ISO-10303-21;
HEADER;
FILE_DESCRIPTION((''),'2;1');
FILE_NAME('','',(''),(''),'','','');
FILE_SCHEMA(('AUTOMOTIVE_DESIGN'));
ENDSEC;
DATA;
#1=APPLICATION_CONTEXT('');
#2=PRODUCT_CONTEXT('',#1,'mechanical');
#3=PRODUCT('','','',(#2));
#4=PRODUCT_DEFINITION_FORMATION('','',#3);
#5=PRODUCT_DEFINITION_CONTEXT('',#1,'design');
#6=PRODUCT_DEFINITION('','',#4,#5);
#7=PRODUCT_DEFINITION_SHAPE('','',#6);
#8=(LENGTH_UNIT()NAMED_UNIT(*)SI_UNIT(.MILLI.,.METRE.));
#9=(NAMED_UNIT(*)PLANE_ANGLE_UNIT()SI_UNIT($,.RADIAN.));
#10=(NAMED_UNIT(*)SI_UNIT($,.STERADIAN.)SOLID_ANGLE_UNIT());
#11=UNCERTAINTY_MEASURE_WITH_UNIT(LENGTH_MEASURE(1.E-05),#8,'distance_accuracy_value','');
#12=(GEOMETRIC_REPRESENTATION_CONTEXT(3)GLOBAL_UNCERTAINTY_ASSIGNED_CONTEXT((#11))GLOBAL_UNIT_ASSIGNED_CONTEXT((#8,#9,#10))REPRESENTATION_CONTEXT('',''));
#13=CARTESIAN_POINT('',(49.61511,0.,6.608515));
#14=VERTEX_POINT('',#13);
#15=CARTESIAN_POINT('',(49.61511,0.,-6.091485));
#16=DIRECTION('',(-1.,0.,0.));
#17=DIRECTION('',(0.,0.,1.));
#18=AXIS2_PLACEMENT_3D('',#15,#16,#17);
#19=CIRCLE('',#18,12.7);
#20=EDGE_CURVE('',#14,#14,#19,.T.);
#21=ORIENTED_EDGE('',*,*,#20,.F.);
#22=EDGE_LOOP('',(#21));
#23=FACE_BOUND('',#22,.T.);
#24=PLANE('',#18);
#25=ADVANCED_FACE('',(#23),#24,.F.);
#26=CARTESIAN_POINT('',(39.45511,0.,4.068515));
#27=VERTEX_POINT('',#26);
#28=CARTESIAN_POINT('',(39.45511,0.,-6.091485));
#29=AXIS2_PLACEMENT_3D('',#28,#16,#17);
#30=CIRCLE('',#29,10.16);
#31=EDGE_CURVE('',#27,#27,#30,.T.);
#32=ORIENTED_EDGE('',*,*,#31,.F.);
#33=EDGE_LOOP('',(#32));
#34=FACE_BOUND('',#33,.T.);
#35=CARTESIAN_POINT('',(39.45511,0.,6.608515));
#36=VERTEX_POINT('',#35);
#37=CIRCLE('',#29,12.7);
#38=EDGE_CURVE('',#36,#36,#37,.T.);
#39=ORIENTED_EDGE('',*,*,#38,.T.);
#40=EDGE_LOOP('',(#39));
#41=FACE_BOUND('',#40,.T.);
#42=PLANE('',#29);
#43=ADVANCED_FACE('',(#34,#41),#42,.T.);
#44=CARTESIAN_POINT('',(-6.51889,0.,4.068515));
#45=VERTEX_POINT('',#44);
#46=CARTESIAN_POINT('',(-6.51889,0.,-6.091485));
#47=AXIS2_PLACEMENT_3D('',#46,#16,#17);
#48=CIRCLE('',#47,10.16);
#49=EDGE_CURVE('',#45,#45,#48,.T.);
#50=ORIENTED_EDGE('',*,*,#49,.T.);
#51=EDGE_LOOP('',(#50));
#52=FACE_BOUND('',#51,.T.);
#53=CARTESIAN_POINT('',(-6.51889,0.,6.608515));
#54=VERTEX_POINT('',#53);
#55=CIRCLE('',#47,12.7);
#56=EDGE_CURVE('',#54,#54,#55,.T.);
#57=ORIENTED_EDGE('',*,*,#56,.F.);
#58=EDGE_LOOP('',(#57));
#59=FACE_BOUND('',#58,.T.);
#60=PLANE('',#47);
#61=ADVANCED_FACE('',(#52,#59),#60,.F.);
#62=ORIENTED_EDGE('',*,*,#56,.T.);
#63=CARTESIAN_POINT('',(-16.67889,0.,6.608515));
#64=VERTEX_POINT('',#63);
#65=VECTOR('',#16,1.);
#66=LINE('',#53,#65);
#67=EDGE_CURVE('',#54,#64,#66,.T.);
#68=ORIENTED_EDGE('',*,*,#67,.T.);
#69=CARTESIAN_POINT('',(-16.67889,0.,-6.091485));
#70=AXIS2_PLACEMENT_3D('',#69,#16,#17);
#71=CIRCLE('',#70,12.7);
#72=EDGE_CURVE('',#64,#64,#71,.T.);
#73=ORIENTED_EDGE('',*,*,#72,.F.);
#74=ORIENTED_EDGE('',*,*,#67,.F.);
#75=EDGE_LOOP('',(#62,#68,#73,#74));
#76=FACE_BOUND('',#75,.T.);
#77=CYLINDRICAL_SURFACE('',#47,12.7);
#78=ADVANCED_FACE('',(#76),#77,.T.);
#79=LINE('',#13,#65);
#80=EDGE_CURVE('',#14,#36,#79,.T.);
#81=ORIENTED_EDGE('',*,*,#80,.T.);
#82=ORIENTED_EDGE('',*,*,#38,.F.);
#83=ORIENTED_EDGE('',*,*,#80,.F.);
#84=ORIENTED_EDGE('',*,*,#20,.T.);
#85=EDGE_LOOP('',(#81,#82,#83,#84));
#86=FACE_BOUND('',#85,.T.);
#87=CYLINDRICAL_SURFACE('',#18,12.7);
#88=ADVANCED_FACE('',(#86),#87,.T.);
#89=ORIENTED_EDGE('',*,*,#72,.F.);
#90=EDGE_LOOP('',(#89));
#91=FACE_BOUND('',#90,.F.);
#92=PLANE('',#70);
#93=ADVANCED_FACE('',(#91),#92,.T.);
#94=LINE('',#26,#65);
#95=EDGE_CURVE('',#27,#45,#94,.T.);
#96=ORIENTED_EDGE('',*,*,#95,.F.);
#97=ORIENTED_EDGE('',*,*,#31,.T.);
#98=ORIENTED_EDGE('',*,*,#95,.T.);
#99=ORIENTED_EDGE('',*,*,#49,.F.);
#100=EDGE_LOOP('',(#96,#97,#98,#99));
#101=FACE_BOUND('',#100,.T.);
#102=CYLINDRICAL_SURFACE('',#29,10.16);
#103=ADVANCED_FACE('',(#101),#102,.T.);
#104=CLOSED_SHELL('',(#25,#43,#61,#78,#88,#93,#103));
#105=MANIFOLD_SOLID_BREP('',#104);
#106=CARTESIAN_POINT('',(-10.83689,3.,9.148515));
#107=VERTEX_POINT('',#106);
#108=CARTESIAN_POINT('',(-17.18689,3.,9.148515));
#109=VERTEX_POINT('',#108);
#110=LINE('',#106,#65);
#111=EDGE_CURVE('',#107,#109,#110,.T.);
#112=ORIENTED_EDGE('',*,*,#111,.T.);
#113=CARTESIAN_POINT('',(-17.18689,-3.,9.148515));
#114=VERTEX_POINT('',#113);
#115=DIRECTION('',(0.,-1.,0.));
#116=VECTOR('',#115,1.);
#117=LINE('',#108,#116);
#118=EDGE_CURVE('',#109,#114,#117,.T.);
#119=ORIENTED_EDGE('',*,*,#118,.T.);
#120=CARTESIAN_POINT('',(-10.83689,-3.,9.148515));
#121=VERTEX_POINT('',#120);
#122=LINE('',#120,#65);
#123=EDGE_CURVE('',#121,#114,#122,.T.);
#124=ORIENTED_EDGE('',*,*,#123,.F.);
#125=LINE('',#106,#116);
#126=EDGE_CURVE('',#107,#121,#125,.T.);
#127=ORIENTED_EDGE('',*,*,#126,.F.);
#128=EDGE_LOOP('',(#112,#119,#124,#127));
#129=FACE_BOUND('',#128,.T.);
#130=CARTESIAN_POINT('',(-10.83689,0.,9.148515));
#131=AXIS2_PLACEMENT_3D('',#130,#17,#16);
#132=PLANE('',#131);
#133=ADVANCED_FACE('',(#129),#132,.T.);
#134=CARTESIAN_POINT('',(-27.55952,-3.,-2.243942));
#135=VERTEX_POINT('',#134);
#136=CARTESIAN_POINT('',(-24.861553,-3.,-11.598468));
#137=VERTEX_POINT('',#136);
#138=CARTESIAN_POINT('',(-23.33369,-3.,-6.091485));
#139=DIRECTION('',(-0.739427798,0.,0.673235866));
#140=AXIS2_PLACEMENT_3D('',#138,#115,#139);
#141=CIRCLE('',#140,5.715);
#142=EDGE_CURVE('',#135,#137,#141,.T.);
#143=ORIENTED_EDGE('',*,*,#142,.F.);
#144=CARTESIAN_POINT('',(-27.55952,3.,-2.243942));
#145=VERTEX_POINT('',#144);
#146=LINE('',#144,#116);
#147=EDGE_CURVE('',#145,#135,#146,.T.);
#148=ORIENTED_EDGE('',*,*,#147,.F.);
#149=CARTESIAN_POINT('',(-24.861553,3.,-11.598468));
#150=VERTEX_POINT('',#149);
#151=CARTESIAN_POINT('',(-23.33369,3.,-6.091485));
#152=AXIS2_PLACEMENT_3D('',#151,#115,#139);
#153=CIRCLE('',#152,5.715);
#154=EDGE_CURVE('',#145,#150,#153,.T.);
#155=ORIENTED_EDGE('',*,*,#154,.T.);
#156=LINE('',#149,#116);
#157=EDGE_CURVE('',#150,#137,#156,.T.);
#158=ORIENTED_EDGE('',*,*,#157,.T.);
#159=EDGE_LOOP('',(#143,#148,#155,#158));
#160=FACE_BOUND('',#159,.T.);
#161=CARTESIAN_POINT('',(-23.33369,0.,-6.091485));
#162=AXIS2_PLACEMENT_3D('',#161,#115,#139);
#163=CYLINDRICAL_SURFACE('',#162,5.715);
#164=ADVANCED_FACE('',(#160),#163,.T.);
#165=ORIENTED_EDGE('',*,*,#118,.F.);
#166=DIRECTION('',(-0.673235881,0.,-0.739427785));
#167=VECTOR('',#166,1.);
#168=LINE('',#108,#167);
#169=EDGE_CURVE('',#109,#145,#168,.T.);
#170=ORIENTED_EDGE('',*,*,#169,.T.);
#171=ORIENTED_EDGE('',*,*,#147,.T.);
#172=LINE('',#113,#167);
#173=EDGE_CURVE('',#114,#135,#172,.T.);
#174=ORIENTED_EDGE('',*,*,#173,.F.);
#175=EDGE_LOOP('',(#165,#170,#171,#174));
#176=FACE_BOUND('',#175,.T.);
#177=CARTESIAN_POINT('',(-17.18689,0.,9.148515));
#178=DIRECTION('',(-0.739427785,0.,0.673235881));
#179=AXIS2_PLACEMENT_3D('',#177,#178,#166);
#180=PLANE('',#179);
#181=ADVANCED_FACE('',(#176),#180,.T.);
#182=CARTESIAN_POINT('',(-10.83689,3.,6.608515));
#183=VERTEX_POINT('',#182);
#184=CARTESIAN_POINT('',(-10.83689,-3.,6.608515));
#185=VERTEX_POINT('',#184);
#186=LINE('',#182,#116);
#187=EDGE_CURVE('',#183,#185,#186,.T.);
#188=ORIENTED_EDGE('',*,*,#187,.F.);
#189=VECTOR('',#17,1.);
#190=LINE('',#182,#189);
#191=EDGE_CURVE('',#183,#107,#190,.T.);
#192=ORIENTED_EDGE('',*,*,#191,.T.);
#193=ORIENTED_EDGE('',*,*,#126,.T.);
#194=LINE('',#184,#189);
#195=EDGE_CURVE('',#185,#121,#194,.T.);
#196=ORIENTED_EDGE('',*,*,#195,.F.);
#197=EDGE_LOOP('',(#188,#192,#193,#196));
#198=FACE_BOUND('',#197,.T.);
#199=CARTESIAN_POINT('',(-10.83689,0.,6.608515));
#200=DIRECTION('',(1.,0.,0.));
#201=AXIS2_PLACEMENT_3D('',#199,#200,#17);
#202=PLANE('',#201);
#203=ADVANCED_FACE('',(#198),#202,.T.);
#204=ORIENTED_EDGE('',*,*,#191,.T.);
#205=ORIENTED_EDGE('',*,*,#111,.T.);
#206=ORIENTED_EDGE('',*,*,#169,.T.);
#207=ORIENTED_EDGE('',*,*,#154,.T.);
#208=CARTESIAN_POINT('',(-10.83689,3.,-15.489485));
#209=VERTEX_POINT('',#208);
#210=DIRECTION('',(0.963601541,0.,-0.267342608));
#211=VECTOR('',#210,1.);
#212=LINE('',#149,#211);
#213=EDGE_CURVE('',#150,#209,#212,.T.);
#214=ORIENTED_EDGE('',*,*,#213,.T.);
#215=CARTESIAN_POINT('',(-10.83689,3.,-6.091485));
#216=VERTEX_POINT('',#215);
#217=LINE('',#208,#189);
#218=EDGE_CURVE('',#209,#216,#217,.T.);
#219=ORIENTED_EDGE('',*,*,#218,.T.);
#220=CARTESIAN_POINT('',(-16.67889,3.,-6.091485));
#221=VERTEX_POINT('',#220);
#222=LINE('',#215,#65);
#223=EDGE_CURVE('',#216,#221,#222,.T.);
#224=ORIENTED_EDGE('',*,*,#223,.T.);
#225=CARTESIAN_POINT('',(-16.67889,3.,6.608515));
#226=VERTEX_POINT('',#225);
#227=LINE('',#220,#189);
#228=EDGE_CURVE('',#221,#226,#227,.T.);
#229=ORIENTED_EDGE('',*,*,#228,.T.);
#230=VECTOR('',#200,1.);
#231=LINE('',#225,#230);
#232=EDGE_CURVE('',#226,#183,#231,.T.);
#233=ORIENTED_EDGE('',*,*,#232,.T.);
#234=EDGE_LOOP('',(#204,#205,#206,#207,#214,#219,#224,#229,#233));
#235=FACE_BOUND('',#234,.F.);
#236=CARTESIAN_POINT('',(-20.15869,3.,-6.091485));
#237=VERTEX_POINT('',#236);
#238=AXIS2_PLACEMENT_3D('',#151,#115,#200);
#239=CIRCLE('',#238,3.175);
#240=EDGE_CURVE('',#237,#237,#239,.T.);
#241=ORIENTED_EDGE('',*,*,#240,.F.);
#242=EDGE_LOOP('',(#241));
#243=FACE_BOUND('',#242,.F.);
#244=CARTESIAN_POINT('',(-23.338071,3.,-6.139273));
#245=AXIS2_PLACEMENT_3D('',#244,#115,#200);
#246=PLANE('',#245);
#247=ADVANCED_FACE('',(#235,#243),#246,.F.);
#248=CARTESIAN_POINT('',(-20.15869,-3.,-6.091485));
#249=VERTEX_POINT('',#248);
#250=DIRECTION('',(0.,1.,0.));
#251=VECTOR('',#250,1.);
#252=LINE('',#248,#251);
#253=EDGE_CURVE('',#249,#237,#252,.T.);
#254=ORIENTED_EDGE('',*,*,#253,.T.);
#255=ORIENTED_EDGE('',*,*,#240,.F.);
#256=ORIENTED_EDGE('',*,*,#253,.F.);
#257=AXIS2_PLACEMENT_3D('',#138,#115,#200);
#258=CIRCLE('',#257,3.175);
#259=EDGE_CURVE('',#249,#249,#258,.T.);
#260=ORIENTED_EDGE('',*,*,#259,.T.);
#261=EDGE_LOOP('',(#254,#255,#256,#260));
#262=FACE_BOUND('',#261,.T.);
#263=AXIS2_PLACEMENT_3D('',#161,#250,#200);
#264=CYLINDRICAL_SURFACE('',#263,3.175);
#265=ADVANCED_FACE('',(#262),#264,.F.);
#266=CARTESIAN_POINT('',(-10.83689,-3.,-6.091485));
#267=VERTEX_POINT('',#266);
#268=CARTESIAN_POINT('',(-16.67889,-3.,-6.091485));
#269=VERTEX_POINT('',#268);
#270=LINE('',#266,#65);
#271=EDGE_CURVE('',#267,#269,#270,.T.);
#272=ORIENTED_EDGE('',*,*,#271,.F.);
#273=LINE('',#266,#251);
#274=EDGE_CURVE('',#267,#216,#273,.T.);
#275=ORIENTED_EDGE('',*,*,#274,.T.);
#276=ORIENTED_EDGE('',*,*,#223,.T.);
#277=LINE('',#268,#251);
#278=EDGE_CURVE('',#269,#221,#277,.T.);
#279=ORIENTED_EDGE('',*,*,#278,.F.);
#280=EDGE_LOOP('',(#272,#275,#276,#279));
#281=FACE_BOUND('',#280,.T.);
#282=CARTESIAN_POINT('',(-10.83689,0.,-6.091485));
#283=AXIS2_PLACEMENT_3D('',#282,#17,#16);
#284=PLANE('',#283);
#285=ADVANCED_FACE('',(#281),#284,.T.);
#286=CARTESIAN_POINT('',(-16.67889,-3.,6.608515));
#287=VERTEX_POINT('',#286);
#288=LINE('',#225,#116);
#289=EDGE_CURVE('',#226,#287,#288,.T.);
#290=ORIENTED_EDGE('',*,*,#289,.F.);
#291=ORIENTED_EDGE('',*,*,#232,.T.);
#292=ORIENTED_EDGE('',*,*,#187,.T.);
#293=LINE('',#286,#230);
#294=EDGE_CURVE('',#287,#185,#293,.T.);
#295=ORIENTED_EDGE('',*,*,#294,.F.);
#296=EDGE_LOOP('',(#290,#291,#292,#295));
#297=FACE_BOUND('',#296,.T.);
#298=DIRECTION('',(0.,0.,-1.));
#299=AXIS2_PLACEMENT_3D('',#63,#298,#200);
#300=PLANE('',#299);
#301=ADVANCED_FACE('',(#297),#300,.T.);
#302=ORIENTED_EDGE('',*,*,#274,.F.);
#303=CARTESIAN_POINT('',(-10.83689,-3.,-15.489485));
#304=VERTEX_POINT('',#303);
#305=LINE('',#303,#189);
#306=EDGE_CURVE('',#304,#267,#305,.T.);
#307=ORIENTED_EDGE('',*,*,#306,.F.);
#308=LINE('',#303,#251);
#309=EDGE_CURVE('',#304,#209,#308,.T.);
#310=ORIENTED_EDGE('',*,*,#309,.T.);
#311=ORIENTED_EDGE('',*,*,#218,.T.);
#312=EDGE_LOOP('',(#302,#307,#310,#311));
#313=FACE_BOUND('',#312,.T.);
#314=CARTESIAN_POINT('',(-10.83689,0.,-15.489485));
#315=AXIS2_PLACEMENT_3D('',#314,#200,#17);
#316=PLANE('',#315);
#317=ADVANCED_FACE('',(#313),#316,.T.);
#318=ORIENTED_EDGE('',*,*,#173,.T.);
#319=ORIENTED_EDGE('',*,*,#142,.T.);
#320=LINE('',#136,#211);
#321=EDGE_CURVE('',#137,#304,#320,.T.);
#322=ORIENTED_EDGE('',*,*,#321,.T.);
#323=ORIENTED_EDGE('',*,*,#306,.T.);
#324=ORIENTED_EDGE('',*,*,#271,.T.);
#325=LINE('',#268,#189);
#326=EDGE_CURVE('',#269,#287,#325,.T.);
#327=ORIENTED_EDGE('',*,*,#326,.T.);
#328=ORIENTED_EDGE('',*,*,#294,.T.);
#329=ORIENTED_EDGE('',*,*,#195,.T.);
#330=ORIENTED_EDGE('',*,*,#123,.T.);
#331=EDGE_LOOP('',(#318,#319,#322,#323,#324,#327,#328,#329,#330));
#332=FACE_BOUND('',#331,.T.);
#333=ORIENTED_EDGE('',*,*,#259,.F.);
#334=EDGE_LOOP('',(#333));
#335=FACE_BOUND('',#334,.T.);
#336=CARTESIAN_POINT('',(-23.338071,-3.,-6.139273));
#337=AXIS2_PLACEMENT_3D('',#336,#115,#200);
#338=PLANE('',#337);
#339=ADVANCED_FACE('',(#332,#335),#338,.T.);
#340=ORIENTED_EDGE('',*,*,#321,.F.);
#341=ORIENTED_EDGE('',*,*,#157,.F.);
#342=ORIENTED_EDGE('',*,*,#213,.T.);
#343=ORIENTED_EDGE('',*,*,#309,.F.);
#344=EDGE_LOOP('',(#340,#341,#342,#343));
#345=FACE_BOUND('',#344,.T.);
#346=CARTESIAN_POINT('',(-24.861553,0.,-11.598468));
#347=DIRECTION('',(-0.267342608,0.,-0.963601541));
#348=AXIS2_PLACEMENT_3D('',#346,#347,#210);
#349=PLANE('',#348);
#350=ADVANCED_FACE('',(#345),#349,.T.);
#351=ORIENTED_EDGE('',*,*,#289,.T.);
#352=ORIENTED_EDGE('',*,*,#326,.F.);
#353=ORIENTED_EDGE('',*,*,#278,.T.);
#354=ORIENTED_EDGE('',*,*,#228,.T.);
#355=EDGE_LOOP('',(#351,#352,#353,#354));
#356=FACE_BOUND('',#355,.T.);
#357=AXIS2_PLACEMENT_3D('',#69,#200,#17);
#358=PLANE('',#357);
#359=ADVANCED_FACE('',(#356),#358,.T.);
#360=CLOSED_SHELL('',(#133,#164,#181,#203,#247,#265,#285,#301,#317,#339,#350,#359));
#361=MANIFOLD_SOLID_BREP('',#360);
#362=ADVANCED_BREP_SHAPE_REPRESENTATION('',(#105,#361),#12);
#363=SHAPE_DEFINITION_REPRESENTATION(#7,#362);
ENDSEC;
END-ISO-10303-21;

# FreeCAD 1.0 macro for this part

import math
import FreeCAD as App
import Part
import Sketcher
Q = App.Units.Quantity

doc = App.newDocument("Part")
body = doc.addObject("PartDesign::Body", "Body")

# Sketch on XZ plane
sketch1 = body.newObject("Sketcher::SketchObject", "Sketch")
sketch1.AttachmentSupport = (doc.getObject("XZ_Plane"), [""])
sketch1.MapMode = "FlatFace"
sketch1.addGeometry([
    Part.LineSegment(App.Vector(49.6, -6.1, 0), App.Vector(49.6, 6.6, 0)),  # 0
    Part.LineSegment(App.Vector(49.6, 6.6, 0), App.Vector(39.5, 6.6, 0)),  # 1
    Part.LineSegment(App.Vector(39.5, 6.6, 0), App.Vector(39.5, 4.1, 0)),  # 2
    Part.LineSegment(App.Vector(39.5, 4.1, 0), App.Vector(-6.5, 4.1, 0)),  # 3
    Part.LineSegment(App.Vector(-6.5, 4.1, 0), App.Vector(-6.5, 6.6, 0)),  # 4
    Part.LineSegment(App.Vector(-6.5, 6.6, 0), App.Vector(-16.7, 6.6, 0)),  # 5
    Part.LineSegment(App.Vector(-16.7, 6.6, 0), App.Vector(-16.7, -6.1, 0)),  # 6
    Part.LineSegment(App.Vector(-16.7, -6.1, 0), App.Vector(49.6, -6.1, 0)),  # 7
], False)
sketch1.addGeometry(Part.LineSegment(App.Vector(49.6, -6.1, 0), App.Vector(-16.7, -6.1, 0)), True)  # axis
sketch1.addConstraint([
    Sketcher.Constraint("Coincident", 0, 2, 1, 1),
    Sketcher.Constraint("Coincident", 1, 2, 2, 1),
    Sketcher.Constraint("Coincident", 2, 2, 3, 1),
    Sketcher.Constraint("Coincident", 3, 2, 4, 1),
    Sketcher.Constraint("Coincident", 4, 2, 5, 1),
    Sketcher.Constraint("Coincident", 5, 2, 6, 1),
    Sketcher.Constraint("Coincident", 6, 2, 7, 1),
    Sketcher.Constraint("Coincident", 7, 2, 0, 1),
    Sketcher.Constraint("Vertical", 0),
    Sketcher.Constraint("Horizontal", 1),
    Sketcher.Constraint("Vertical", 2),
    Sketcher.Constraint("Horizontal", 3),
    Sketcher.Constraint("Vertical", 4),
    Sketcher.Constraint("Horizontal", 5),
    Sketcher.Constraint("Vertical", 6),
    Sketcher.Constraint("Horizontal", 7),
    Sketcher.Constraint("Horizontal", 8),
    Sketcher.Constraint("Coincident", 8, 1, 7, 2),
    Sketcher.Constraint("Horizontal", 1, 2, 4, 2),
    Sketcher.Constraint("Vertical", 5, 2, 8, 2),
    Sketcher.Constraint("Equal", 1, 5),
    Sketcher.Constraint("DistanceX", 1, 2, 1, 1, Q("0.4 in")),
    Sketcher.Constraint("DistanceY", 0, 1, 0, 2, Q("0.5 in")),
    Sketcher.Constraint("DistanceY", 2, 2, 2, 1, Q("0.1 in")),
    Sketcher.Constraint("DistanceX", 3, 2, 3, 1, Q("1.81 in")),
    Sketcher.Constraint("DistanceX", -1, 1, 0, 2, Q("49.61511 mm")),
    Sketcher.Constraint("DistanceY", -1, 1, 0, 2, Q("6.608515 mm")),
])
revolution = body.newObject("PartDesign::Revolution", "Revolution")
revolution.Profile = sketch1
revolution.ReferenceAxis = (sketch1, ["Axis0"])
revolution.Angle = 360
body2 = doc.addObject("PartDesign::Body", "Body001")

# Sketch on XZ plane
sketch2 = body2.newObject("Sketcher::SketchObject", "Sketch001")
sketch2.AttachmentSupport = (doc.getObject("XZ_Plane001"), [""])
sketch2.MapMode = "FlatFace"
sketch2.addGeometry([
    Part.LineSegment(App.Vector(-16.7, -6.1, 0), App.Vector(-16.7, 6.6, 0)),  # 0
    Part.LineSegment(App.Vector(-16.7, 6.6, 0), App.Vector(-10.8, 6.6, 0)),  # 1
    Part.LineSegment(App.Vector(-10.8, 6.6, 0), App.Vector(-10.8, 9.1, 0)),  # 2
    Part.LineSegment(App.Vector(-10.8, 9.1, 0), App.Vector(-17.2, 9.1, 0)),  # 3
    Part.LineSegment(App.Vector(-17.2, 9.1, 0), App.Vector(-27.6, -2.2, 0)),  # 4
    Part.ArcOfCircle(Part.Circle(App.Vector(-23.3, -6.1, 0), App.Vector(0, 0, 1), 5.7), math.radians(138), math.radians(254)),  # 5
    Part.LineSegment(App.Vector(-24.9, -11.6, 0), App.Vector(-10.8, -15.5, 0)),  # 6
    Part.LineSegment(App.Vector(-10.8, -15.5, 0), App.Vector(-10.8, -6.1, 0)),  # 7
    Part.LineSegment(App.Vector(-10.8, -6.1, 0), App.Vector(-16.7, -6.1, 0)),  # 8
    Part.Circle(App.Vector(-23.3, -6.1, 0), App.Vector(0, 0, 1), 3.2),  # 9
], False)
sketch2.addConstraint([
    Sketcher.Constraint("Coincident", 0, 2, 1, 1),
    Sketcher.Constraint("Coincident", 1, 2, 2, 1),
    Sketcher.Constraint("Coincident", 2, 2, 3, 1),
    Sketcher.Constraint("Coincident", 3, 2, 4, 1),
    Sketcher.Constraint("Tangent", 4, 2, 5, 1),
    Sketcher.Constraint("Tangent", 5, 2, 6, 1),
    Sketcher.Constraint("Coincident", 6, 2, 7, 1),
    Sketcher.Constraint("Coincident", 7, 2, 8, 1),
    Sketcher.Constraint("Coincident", 8, 2, 0, 1),
    Sketcher.Constraint("Vertical", 0),
    Sketcher.Constraint("Horizontal", 1),
    Sketcher.Constraint("Vertical", 2),
    Sketcher.Constraint("Horizontal", 3),
    Sketcher.Constraint("Vertical", 7),
    Sketcher.Constraint("Horizontal", 8),
    Sketcher.Constraint("Coincident", 9, 3, 5, 3),
    Sketcher.Constraint("Horizontal", 9, 3, 7, 2),
    Sketcher.Constraint("Vertical", 2, 2, 6, 2),
    Sketcher.Constraint("Diameter", 9, Q("0.25 in")),
    Sketcher.Constraint("DistanceY", 0, 1, 0, 2, Q("0.5 in")),
    Sketcher.Constraint("DistanceY", 2, 1, 2, 2, Q("0.1 in")),
    Sketcher.Constraint("Radius", 5, Q("0.225 in")),
    Sketcher.Constraint("DistanceX", 1, 1, 1, 2, Q("0.23 in")),
    Sketcher.Constraint("DistanceX", 3, 2, 3, 1, Q("0.25 in")),
    Sketcher.Constraint("DistanceY", 7, 1, 7, 2, Q("0.37 in")),
    Sketcher.Constraint("DistanceX", 9, 3, 0, 2, Q("0.262 in")),
    Sketcher.Constraint("DistanceX", 5, 3, -1, 1, Q("23.33369 mm")),
    Sketcher.Constraint("DistanceY", 5, 3, -1, 1, Q("6.091485 mm")),
])
pad1 = body2.newObject("PartDesign::Pad", "Pad")
pad1.Profile = sketch2
pad1.Length = 6
pad1.Midplane = True

doc.recompute()
